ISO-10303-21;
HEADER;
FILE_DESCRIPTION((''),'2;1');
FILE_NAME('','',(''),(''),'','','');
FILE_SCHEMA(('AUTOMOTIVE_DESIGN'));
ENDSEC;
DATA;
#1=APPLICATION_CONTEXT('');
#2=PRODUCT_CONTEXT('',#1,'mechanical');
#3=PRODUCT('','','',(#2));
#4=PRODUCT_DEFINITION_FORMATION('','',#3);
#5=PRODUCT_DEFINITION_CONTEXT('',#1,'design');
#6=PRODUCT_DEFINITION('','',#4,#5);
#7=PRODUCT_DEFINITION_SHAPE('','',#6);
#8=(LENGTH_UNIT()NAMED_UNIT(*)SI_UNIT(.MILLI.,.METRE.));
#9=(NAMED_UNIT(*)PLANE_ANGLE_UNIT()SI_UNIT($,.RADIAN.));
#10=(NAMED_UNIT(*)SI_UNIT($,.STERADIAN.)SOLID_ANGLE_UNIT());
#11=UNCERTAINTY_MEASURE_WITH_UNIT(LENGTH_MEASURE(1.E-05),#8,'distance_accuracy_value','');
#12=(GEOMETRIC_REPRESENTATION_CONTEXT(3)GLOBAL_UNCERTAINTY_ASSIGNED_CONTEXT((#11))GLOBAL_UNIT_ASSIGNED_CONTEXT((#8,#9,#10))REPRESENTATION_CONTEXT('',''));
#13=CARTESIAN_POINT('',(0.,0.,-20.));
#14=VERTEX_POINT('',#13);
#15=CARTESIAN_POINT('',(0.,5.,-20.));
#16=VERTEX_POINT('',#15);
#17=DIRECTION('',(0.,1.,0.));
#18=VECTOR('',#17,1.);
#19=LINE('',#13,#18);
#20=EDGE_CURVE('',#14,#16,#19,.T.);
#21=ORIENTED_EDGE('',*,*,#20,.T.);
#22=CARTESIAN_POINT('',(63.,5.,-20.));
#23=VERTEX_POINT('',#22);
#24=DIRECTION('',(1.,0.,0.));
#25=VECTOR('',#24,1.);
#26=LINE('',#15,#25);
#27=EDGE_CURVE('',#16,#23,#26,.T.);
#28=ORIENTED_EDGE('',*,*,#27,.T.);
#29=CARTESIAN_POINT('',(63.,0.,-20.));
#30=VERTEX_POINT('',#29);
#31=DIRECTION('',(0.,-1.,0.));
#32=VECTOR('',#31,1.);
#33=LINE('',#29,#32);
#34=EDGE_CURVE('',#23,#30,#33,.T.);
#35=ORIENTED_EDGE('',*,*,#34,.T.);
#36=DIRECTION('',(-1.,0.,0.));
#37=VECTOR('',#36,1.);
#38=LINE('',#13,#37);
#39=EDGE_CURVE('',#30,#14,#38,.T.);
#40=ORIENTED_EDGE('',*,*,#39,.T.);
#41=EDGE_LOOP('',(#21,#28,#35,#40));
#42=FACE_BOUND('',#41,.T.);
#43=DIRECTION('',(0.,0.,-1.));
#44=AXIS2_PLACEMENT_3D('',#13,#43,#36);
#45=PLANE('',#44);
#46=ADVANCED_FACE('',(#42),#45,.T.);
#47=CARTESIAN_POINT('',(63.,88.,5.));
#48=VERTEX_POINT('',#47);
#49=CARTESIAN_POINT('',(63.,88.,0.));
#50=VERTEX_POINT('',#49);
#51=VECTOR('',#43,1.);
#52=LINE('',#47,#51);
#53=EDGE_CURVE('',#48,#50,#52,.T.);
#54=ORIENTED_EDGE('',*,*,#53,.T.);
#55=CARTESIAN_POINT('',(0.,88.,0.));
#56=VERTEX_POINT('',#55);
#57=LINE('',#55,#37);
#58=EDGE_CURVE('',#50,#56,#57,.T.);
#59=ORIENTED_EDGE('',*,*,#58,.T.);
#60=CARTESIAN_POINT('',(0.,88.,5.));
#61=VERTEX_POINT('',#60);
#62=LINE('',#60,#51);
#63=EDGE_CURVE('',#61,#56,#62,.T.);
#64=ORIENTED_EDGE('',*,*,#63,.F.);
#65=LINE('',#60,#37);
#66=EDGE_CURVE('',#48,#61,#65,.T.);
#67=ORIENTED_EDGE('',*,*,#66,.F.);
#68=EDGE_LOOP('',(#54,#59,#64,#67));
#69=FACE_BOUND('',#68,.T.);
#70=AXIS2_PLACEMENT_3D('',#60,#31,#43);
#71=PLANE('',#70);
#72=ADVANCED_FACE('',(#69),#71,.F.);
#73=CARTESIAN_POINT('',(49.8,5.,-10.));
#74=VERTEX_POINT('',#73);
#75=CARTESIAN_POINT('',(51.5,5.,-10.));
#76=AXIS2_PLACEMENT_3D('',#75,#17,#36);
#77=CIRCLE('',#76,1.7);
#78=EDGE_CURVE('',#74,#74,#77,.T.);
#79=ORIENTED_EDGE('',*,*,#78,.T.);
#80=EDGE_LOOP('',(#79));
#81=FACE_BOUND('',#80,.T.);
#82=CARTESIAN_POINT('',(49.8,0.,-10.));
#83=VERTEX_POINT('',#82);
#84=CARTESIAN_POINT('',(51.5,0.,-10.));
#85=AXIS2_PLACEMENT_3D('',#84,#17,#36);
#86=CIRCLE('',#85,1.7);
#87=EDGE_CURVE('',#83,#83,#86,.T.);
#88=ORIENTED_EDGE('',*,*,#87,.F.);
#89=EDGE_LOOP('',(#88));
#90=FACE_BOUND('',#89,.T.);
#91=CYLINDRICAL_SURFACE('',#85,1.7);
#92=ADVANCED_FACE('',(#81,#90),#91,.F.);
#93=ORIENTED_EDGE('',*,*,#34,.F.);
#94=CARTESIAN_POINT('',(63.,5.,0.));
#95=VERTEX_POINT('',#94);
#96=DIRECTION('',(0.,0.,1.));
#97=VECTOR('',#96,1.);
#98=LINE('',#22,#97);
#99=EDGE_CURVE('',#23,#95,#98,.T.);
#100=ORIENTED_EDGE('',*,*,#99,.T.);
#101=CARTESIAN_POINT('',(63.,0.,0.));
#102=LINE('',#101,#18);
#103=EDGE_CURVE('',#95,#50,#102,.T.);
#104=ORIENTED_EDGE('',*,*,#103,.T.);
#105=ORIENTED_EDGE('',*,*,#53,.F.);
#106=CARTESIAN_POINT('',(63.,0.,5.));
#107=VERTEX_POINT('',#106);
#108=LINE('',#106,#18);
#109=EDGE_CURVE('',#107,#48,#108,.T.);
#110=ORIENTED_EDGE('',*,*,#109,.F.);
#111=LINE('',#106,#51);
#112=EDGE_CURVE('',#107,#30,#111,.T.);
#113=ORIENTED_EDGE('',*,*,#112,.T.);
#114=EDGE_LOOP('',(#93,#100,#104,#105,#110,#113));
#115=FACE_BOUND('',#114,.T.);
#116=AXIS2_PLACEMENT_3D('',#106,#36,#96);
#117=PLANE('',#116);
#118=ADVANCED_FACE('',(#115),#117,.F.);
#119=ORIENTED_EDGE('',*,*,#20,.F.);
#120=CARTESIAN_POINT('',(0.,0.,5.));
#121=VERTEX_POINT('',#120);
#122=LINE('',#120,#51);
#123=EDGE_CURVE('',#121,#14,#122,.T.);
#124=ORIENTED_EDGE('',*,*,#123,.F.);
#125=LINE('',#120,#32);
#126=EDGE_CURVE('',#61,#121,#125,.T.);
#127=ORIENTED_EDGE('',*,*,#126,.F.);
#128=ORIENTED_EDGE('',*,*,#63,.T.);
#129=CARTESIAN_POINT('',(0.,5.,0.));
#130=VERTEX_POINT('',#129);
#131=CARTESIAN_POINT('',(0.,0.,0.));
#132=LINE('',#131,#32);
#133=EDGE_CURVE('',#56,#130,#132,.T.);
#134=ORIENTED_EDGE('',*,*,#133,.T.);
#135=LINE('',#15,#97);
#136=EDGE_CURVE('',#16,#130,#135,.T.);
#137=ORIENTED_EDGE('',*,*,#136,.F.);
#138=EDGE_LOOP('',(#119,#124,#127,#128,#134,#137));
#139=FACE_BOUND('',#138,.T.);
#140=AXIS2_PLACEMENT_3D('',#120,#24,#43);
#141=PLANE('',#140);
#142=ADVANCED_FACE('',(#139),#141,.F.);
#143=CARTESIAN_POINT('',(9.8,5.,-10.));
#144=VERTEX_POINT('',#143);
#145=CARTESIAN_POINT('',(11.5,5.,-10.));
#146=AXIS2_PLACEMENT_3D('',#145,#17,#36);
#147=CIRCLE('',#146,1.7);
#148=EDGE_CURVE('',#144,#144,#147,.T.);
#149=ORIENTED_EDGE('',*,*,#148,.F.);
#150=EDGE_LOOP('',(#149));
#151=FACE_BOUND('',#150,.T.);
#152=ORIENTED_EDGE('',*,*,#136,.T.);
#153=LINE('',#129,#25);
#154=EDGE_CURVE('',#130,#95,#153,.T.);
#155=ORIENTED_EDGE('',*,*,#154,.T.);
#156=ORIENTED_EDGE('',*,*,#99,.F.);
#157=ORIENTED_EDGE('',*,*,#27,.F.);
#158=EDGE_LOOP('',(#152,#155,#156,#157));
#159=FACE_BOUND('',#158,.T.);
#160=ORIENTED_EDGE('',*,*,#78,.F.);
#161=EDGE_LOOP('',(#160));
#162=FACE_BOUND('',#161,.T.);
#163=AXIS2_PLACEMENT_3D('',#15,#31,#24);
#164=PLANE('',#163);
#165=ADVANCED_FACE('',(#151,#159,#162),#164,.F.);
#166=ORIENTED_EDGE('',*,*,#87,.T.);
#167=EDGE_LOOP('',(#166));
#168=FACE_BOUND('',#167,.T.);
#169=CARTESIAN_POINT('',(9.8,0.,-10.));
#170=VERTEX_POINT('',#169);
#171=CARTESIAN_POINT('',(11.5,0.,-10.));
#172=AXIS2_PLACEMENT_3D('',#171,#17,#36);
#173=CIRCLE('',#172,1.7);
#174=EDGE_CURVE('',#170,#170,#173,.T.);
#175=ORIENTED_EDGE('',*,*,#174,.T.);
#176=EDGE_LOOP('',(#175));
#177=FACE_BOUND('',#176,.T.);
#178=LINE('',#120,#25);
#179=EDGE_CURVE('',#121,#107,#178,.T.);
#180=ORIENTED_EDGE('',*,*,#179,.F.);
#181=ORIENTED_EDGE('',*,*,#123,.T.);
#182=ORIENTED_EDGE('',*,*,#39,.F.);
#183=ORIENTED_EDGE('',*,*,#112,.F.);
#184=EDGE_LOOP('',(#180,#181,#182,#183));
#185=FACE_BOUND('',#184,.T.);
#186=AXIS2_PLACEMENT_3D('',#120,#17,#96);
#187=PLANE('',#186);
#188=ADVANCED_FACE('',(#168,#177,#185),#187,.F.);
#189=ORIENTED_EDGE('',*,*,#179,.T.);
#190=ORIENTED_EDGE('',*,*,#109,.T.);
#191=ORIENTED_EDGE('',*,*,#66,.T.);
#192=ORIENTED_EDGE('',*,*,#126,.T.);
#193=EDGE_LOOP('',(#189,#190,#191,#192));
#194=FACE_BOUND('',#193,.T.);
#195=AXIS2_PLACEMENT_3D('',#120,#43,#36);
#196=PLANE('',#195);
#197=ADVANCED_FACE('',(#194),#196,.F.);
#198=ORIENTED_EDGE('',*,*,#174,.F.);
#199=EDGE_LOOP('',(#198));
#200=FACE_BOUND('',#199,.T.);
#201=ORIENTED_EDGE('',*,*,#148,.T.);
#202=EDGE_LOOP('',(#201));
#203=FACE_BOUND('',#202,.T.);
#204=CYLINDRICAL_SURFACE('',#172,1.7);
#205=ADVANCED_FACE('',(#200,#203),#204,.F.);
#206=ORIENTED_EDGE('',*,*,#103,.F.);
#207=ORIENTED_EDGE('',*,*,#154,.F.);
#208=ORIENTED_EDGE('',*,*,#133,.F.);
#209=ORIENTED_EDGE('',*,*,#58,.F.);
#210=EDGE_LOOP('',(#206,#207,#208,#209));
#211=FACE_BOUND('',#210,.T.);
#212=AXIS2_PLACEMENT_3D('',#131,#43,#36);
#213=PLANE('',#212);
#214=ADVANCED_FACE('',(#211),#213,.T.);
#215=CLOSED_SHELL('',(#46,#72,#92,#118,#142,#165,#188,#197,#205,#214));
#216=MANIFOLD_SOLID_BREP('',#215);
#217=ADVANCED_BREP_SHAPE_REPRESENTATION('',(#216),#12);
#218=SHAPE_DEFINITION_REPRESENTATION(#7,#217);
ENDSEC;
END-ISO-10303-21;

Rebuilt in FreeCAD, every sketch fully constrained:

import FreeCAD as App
import Part
import Sketcher

V = App.Vector


def add_polygon(sketch, points):
    """Adds a closed chain of lines whose ends are joined by coincident constraints."""
    first, n = sketch.GeometryCount, len(points)
    for a, b in zip(points, points[1:] + points[:1]):
        sketch.addGeometry(Part.LineSegment(App.Vector(*a, 0), App.Vector(*b, 0)), False)
    for i in range(n):
        sketch.addConstraint(Sketcher.Constraint("Coincident", first + i, 2, first + (i + 1) % n, 1))

doc = App.newDocument("Part")
body = doc.addObject("PartDesign::Body", "Body")

# Sketch on XY plane
sketch1 = body.newObject("Sketcher::SketchObject", "Sketch")
sketch1.AttachmentSupport = (doc.getObject("XY_Plane"), [""])
sketch1.MapMode = "FlatFace"
add_polygon(sketch1, [(0, 88), (0, 0), (63, 0), (63, 88)])  # lines 0-3
sketch1.addConstraint(Sketcher.Constraint("Vertical", 0))
sketch1.addConstraint(Sketcher.Constraint("Horizontal", 1))
sketch1.addConstraint(Sketcher.Constraint("Vertical", 2))
sketch1.addConstraint(Sketcher.Constraint("Horizontal", 3))
sketch1.addConstraint(Sketcher.Constraint("Coincident", 0, 2, -1, 1))
sketch1.addConstraint(Sketcher.Constraint("DistanceX", 1, 1, 1, 2, 63.0))
sketch1.addConstraint(Sketcher.Constraint("DistanceY", 0, 2, 0, 1, 88.0))
pad1 = body.newObject("PartDesign::Pad", "Pad")
pad1.Profile = sketch1
pad1.Length = 5

# Sketch on XY plane
sketch2 = body.newObject("Sketcher::SketchObject", "Sketch001")
sketch2.AttachmentSupport = (doc.getObject("XY_Plane"), [""])
sketch2.MapMode = "FlatFace"
add_polygon(sketch2, [(63, 5), (63, 0), (0, 0), (0, 5)])  # lines 0-3
sketch2.addConstraint(Sketcher.Constraint("Vertical", 0))
sketch2.addConstraint(Sketcher.Constraint("Horizontal", 1))
sketch2.addConstraint(Sketcher.Constraint("Vertical", 2))
sketch2.addConstraint(Sketcher.Constraint("Horizontal", 3))
sketch2.addConstraint(Sketcher.Constraint("Coincident", 1, 2, -1, 1))
sketch2.addConstraint(Sketcher.Constraint("DistanceX", 1, 2, 1, 1, 63.0))
sketch2.addConstraint(Sketcher.Constraint("DistanceY", 0, 2, 0, 1, 5.0))
pad2 = body.newObject("PartDesign::Pad", "Pad001")
pad2.Profile = sketch2
pad2.Length = 20
pad2.Reversed = True

# Sketch on XZ plane
sketch3 = body.newObject("Sketcher::SketchObject", "Sketch002")
sketch3.AttachmentSupport = (doc.getObject("XZ_Plane"), [""])
sketch3.MapMode = "FlatFace"
sketch3.AttachmentOffset = App.Placement(V(0, 0, -5), App.Rotation())
sketch3.addGeometry(Part.Circle(V(51.5, -10, 0), V(0, 0, 1), 1.7), False)
sketch3.addGeometry(Part.Circle(V(11.5, -10, 0), V(0, 0, 1), 1.7), False)
sketch3.addConstraint(Sketcher.Constraint("Equal", 0, 1))
sketch3.addConstraint(Sketcher.Constraint("Horizontal", 0, 3, 1, 3))
sketch3.addConstraint(Sketcher.Constraint("Diameter", 0, 3.4))
sketch3.addConstraint(Sketcher.Constraint("DistanceY", 0, 3, -1, 1, 10.0))
sketch3.addConstraint(Sketcher.Constraint("DistanceX", 1, 3, 0, 3, 40.0))
sketch3.addConstraint(Sketcher.Constraint("DistanceX", -1, 1, 0, 3, 51.5))
pocket1 = body.newObject("PartDesign::Pocket", "Pocket")
pocket1.Profile = sketch3
pocket1.Type = "ThroughAll"
pocket1.Reversed = True

doc.recompute()
